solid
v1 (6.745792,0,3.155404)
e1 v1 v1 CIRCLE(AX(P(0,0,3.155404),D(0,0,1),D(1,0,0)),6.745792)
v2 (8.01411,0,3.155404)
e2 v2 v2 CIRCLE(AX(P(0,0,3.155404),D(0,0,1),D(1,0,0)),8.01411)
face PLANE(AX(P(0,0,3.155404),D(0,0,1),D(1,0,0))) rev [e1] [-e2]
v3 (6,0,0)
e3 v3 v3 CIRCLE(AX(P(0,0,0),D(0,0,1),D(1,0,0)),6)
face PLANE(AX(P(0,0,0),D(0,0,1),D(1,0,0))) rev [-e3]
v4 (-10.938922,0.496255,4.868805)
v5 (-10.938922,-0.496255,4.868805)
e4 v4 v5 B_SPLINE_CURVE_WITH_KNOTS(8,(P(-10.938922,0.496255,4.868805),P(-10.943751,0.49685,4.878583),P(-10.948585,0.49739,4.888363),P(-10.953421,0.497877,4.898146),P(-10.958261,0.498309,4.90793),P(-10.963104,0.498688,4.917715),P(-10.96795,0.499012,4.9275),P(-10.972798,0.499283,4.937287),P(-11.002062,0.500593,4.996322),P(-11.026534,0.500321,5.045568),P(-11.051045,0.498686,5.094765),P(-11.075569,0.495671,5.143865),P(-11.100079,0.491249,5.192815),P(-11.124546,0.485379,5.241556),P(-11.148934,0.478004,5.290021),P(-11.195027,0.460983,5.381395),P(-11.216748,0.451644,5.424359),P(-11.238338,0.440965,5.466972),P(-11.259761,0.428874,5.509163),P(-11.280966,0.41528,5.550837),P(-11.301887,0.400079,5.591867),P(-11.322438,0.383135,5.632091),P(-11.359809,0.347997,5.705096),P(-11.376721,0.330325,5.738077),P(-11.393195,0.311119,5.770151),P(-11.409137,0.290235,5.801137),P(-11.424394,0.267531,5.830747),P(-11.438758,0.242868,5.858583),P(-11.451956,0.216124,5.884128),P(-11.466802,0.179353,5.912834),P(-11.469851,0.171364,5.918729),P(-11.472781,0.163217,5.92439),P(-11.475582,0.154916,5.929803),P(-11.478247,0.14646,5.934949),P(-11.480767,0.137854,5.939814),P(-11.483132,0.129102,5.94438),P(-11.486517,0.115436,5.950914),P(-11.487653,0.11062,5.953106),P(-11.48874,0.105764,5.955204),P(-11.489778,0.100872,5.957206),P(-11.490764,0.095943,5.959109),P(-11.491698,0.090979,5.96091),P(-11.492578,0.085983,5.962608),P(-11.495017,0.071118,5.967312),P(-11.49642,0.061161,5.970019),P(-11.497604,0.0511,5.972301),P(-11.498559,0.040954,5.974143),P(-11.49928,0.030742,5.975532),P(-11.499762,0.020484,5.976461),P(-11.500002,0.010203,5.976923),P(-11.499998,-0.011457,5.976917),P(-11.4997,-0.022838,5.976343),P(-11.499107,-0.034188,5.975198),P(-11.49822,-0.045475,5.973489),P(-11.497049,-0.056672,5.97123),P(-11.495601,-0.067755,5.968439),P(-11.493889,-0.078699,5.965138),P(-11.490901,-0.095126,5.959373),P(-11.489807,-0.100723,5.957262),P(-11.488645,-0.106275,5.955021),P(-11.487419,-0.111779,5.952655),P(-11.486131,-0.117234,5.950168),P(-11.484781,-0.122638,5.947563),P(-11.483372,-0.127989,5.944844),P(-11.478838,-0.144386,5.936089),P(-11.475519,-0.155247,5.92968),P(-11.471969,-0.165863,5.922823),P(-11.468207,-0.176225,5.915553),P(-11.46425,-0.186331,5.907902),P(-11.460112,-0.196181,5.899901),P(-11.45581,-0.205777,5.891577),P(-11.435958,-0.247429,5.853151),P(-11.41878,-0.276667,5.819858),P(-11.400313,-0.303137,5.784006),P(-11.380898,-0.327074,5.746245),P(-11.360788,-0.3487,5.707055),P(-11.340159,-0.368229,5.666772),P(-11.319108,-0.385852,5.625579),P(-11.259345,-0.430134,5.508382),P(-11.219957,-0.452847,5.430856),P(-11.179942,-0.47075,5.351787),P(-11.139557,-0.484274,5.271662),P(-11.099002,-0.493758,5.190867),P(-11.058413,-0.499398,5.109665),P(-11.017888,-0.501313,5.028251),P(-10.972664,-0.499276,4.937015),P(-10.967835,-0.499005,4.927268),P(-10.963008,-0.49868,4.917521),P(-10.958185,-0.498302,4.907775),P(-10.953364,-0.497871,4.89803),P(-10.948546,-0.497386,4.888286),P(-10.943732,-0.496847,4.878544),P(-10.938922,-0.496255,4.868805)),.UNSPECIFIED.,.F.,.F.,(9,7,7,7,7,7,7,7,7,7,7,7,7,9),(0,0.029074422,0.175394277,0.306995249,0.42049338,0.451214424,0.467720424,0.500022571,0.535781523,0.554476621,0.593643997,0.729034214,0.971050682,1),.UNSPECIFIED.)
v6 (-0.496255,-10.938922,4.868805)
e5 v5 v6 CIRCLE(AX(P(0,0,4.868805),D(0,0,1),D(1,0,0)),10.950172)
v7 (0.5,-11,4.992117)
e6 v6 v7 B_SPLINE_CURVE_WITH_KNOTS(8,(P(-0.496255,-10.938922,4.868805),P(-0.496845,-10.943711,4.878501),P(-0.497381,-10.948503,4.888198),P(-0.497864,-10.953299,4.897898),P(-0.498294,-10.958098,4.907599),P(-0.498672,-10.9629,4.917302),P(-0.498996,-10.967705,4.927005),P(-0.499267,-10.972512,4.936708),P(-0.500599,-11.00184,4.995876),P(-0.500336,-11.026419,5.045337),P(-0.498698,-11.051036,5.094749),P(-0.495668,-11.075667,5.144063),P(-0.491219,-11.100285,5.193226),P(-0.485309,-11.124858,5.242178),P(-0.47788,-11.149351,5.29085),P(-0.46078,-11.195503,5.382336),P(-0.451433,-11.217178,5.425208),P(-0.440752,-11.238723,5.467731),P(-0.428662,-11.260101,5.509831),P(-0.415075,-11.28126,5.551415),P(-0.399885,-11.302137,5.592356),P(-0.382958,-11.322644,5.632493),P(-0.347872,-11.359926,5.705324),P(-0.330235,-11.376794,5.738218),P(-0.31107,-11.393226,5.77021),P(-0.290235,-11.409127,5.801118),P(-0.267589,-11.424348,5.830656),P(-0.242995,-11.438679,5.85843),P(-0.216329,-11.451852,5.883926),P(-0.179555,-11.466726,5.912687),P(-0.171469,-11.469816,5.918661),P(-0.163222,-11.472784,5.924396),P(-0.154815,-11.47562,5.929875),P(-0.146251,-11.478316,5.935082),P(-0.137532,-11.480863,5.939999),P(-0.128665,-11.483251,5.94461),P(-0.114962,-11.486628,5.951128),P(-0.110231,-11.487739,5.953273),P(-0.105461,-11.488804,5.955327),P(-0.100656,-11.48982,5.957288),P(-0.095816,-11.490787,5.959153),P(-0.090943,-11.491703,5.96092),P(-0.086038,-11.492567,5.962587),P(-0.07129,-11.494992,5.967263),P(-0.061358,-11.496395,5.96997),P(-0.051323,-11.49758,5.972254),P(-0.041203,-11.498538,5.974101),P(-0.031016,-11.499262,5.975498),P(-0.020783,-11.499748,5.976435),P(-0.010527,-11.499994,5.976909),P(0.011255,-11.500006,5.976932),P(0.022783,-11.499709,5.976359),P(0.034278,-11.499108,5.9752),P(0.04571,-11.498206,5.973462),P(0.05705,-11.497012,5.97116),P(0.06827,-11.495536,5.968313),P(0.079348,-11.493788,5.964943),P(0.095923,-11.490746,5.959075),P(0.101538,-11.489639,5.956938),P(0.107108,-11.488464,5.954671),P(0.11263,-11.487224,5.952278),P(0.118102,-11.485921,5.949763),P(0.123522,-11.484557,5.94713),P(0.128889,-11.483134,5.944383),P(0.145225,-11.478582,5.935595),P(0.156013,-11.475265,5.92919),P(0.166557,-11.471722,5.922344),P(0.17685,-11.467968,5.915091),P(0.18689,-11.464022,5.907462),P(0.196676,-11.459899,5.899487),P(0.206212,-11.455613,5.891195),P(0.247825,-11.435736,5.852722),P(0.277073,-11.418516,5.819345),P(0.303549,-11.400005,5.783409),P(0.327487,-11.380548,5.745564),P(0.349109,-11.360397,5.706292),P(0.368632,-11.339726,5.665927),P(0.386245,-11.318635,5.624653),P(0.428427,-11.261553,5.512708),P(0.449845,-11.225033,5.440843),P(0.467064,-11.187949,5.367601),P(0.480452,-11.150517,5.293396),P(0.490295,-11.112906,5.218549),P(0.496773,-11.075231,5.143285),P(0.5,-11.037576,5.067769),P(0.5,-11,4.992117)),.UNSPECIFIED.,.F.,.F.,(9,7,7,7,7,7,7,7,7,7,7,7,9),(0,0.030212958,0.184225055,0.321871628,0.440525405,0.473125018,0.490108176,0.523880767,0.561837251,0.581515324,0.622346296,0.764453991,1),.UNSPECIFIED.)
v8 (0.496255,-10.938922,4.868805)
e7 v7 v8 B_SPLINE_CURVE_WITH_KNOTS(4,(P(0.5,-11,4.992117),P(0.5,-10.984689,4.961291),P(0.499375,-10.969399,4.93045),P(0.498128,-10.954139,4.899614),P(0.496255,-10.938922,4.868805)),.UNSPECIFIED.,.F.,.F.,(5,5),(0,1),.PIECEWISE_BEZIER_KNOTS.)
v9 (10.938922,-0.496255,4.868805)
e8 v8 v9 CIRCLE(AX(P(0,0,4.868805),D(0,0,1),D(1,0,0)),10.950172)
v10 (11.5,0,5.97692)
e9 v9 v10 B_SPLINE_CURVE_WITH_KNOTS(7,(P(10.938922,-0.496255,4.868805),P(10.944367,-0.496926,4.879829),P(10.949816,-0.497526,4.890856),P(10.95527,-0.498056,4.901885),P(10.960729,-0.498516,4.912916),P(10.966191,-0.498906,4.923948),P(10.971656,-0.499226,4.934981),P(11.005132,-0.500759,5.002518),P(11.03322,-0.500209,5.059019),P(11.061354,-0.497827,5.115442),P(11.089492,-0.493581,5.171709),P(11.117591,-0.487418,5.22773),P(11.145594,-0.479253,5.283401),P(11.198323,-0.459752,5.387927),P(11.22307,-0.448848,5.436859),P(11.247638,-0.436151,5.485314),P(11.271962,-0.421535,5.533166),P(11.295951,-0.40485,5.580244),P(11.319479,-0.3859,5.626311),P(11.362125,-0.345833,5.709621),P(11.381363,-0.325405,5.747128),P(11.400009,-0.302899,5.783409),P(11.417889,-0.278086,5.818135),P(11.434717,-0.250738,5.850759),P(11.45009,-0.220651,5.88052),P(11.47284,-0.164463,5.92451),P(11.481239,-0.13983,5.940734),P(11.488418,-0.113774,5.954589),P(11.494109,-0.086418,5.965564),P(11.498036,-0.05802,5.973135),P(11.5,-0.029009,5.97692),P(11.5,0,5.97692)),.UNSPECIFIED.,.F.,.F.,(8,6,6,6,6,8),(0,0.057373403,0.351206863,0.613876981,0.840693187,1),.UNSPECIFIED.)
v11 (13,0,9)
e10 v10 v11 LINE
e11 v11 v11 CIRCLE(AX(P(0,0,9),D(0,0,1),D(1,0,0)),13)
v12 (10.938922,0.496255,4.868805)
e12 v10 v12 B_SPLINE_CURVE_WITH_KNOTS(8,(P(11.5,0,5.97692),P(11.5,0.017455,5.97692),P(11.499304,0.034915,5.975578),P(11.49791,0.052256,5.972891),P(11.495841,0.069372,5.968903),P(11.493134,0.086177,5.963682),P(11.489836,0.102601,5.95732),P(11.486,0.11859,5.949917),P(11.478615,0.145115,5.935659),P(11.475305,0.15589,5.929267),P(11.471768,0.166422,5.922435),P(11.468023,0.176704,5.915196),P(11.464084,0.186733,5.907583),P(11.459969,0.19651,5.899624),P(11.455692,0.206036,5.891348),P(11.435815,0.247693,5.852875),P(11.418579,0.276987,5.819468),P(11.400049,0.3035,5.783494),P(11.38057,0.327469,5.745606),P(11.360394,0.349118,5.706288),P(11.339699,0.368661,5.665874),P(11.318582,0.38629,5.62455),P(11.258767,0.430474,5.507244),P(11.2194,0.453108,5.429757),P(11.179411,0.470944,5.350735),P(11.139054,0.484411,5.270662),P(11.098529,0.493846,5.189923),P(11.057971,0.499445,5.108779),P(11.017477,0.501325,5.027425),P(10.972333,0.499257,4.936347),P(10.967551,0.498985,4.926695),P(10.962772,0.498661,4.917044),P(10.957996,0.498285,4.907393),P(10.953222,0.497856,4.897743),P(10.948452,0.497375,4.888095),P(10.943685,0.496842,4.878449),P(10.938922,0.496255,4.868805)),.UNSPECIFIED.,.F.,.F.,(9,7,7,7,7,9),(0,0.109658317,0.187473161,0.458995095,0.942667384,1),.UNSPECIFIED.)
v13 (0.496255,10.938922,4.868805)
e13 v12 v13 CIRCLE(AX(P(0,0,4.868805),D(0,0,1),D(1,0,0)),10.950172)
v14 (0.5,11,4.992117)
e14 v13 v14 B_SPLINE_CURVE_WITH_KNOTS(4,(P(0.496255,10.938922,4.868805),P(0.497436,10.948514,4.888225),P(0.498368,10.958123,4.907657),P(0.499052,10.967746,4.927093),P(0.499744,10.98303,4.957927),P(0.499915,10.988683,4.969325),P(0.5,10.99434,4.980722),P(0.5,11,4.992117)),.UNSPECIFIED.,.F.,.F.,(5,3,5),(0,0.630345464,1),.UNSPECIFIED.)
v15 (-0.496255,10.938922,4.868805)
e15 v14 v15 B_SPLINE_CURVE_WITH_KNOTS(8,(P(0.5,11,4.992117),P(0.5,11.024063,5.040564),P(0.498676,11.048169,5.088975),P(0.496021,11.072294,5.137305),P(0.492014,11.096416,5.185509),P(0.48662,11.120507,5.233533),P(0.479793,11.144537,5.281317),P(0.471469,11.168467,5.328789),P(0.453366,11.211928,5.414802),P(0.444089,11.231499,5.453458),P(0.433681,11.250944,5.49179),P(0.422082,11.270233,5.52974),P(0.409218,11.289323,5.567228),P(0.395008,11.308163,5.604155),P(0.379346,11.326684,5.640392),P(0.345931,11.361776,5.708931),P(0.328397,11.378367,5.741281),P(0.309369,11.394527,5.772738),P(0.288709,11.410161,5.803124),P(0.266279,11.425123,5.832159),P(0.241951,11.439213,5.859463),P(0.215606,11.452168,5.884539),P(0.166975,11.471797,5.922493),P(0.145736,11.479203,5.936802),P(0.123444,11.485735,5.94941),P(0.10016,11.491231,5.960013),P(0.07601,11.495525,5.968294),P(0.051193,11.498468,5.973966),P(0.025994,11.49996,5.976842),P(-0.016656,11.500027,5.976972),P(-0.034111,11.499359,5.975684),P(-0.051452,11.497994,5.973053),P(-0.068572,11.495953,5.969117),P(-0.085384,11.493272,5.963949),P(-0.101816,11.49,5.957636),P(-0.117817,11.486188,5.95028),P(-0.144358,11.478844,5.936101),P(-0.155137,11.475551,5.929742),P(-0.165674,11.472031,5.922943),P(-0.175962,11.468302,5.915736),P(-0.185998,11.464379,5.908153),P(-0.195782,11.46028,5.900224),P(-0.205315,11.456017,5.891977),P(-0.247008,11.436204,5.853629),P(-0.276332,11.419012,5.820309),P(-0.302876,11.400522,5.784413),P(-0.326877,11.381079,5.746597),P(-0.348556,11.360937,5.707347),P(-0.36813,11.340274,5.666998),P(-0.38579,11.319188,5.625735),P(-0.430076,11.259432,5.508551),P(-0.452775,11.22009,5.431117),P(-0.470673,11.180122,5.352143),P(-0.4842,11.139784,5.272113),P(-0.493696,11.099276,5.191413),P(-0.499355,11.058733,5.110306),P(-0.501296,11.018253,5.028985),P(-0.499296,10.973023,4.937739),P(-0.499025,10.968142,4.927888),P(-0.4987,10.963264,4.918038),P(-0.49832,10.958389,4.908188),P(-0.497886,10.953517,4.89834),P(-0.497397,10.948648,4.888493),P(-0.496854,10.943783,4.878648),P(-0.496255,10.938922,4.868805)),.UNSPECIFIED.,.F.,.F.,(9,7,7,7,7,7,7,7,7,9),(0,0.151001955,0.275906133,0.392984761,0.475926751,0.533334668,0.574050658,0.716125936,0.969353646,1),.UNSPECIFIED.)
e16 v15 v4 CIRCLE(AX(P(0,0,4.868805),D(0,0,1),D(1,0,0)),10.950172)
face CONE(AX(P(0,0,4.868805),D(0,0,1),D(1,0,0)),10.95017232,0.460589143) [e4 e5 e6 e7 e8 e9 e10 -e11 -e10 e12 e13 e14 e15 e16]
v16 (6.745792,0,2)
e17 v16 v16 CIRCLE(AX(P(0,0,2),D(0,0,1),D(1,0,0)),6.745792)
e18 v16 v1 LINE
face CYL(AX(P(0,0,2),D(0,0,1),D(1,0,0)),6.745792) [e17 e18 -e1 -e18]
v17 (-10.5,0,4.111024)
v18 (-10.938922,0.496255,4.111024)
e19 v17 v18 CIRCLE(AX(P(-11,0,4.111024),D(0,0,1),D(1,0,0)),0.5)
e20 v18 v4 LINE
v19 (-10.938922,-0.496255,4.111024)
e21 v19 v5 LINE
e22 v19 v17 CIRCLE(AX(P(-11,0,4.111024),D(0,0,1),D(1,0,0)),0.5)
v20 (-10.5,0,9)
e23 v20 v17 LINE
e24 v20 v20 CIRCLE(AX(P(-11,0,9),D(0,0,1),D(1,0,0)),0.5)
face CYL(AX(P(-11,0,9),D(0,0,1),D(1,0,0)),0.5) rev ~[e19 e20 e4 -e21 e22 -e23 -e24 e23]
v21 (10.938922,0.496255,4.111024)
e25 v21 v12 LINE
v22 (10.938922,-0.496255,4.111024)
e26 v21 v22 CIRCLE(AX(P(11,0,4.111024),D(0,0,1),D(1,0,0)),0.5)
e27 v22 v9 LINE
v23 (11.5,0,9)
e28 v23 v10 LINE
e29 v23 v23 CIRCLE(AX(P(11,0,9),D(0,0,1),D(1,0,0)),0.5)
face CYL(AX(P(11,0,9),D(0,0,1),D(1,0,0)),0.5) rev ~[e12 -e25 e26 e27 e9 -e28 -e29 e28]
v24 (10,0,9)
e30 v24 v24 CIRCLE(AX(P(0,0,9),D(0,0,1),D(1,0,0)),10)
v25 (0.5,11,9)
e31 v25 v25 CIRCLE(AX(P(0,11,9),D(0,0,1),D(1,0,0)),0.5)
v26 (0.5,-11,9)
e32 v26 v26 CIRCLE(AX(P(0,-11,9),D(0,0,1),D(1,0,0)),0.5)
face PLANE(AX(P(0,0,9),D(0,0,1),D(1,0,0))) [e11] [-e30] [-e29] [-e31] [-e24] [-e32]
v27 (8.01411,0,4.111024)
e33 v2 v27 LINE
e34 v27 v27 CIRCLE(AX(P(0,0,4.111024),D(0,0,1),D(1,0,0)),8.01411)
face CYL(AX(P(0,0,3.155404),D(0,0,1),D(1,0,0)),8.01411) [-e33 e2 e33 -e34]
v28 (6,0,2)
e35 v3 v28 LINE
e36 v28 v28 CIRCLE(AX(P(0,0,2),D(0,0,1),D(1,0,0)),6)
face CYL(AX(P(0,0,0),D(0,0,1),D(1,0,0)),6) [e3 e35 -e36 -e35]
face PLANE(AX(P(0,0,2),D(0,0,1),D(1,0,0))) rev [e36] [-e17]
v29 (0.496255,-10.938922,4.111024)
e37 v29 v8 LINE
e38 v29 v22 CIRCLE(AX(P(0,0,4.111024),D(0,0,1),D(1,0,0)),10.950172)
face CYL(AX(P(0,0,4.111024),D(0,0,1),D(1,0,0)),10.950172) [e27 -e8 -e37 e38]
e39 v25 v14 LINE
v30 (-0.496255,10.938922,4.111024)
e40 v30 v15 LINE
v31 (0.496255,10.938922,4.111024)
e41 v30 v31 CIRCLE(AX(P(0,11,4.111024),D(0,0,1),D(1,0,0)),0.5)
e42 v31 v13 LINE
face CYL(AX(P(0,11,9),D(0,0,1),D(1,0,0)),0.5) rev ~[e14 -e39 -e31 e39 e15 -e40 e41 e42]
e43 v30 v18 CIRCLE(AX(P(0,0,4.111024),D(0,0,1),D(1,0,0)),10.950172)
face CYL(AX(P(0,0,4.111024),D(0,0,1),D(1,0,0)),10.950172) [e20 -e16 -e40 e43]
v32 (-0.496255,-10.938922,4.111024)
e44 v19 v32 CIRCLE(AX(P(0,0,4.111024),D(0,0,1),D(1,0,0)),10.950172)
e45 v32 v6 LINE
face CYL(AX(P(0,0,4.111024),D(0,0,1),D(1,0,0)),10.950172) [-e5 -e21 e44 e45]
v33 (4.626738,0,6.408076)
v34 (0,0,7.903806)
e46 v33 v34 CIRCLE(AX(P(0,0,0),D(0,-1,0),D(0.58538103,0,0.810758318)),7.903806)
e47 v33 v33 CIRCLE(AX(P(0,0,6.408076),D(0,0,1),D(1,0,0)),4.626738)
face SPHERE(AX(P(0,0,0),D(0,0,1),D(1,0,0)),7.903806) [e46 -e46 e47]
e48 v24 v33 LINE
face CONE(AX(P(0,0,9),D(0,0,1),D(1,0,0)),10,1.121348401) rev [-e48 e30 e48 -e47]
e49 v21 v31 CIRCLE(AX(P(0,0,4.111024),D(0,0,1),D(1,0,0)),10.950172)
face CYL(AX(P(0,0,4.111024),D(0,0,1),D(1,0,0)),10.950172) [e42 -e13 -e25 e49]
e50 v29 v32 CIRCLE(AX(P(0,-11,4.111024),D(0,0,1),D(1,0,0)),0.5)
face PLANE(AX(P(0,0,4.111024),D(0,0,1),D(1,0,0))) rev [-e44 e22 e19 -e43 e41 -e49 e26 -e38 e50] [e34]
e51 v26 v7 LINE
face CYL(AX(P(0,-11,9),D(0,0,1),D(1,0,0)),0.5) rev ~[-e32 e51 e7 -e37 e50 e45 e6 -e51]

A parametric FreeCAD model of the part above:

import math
import FreeCAD as App
import Part
import Sketcher
from FreeCAD import Vector
Q = App.Units.Quantity

doc = App.newDocument("Part")
body = doc.addObject("PartDesign::Body", "Body")

sketch1 = body.newObject("Sketcher::SketchObject", "Sketch")
sketch1.AttachmentSupport = (doc.getObject("XZ_Plane"), [""])
sketch1.MapMode = "FlatFace"
sketch1.addGeometry([
    Part.LineSegment(Vector(0, 7.9, 0), Vector(0, 0, 0)),
    Part.LineSegment(Vector(0, 0, 0), Vector(6, 0, 0)),
    Part.LineSegment(Vector(6, 0, 0), Vector(6, 2, 0)),
    Part.LineSegment(Vector(6, 2, 0), Vector(6.7, 2, 0)),
    Part.LineSegment(Vector(6.7, 2, 0), Vector(6.7, 3.2, 0)),
    Part.LineSegment(Vector(6.7, 3.2, 0), Vector(8, 3.2, 0)),
    Part.LineSegment(Vector(8, 3.2, 0), Vector(8, 4.1, 0)),
    Part.LineSegment(Vector(8, 4.1, 0), Vector(11, 4.1, 0)),
    Part.LineSegment(Vector(11, 4.1, 0), Vector(11, 4.9, 0)),
    Part.LineSegment(Vector(11, 4.9, 0), Vector(13, 9, 0)),
    Part.LineSegment(Vector(13, 9, 0), Vector(10, 9, 0)),
    Part.LineSegment(Vector(10, 9, 0), Vector(4.6, 6.4, 0)),
    Part.ArcOfCircle(Part.Circle(Vector(0, 0, 0), Vector(0, 0, 1), 7.9), math.radians(54), math.radians(90)),
], False)
sketch1.addConstraint([
    Sketcher.Constraint("Coincident", 0, 2, 1, 1),
    Sketcher.Constraint("Coincident", 1, 2, 2, 1),
    Sketcher.Constraint("Coincident", 2, 2, 3, 1),
    Sketcher.Constraint("Coincident", 3, 2, 4, 1),
    Sketcher.Constraint("Coincident", 4, 2, 5, 1),
    Sketcher.Constraint("Coincident", 5, 2, 6, 1),
    Sketcher.Constraint("Coincident", 6, 2, 7, 1),
    Sketcher.Constraint("Coincident", 7, 2, 8, 1),
    Sketcher.Constraint("Coincident", 8, 2, 9, 1),
    Sketcher.Constraint("Coincident", 9, 2, 10, 1),
    Sketcher.Constraint("Coincident", 10, 2, 11, 1),
    Sketcher.Constraint("Coincident", 11, 2, 12, 1),
    Sketcher.Constraint("Coincident", 12, 2, 0, 1),
    Sketcher.Constraint("Vertical", 0),
    Sketcher.Constraint("Horizontal", 1),
    Sketcher.Constraint("Vertical", 2),
    Sketcher.Constraint("Horizontal", 3),
    Sketcher.Constraint("Vertical", 4),
    Sketcher.Constraint("Horizontal", 5),
    Sketcher.Constraint("Vertical", 6),
    Sketcher.Constraint("Horizontal", 7),
    Sketcher.Constraint("Vertical", 8),
    Sketcher.Constraint("Horizontal", 10),
    Sketcher.Constraint("Coincident", 12, 3, -1, 1),
    Sketcher.Constraint("Coincident", 0, 2, -1, 1),
    Sketcher.Constraint("DistanceX", 1, 1, 1, 2, Q("6 mm")),
    Sketcher.Constraint("DistanceX", 10, 2, 10, 1, Q("3 mm")),
    Sketcher.Constraint("DistanceY", 2, 1, 2, 2, Q("2 mm")),
    Sketcher.Constraint("DistanceX", -1, 1, 9, 2, Q("13 mm")),
    Sketcher.Constraint("DistanceY", -1, 1, 9, 2, Q("9 mm")),
    Sketcher.Constraint("Radius", 12, Q("7.903806 mm")),
    Sketcher.Constraint("DistanceX", 3, 1, 3, 2, Q("0.745792 mm")),
    Sketcher.Constraint("DistanceY", 6, 1, 6, 2, Q("0.95562 mm")),
    Sketcher.Constraint("DistanceY", 8, 1, 8, 2, Q("0.757781 mm")),
    Sketcher.Constraint("DistanceY", 4, 2, 12, 2, Q("4.748402 mm")),
    Sketcher.Constraint("DistanceX", 5, 1, 5, 2, Q("1.268318 mm")),
    Sketcher.Constraint("DistanceX", 7, 1, 7, 2, Q("2.936062 mm")),
    Sketcher.Constraint("DistanceY", 11, 2, 12, 2, Q("1.495729 mm")),
])
revolution = body.newObject("PartDesign::Revolution", "Revolution")
revolution.Profile = sketch1
revolution.ReferenceAxis = (sketch1, ["V_Axis"])
revolution.Angle = 360

sketch2 = body.newObject("Sketcher::SketchObject", "Sketch001")
sketch2.AttachmentSupport = (doc.getObject("XY_Plane"), [""])
sketch2.MapMode = "FlatFace"
sketch2.AttachmentOffset = App.Placement(Vector(0, 0, 9), App.Rotation())
sketch2.addGeometry([
    Part.Circle(Vector(0, 11, 0), Vector(0, 0, 1), 0.5),
    Part.Circle(Vector(-11, 0, 0), Vector(0, 0, 1), 0.5),
    Part.Circle(Vector(0, -11, 0), Vector(0, 0, 1), 0.5),
    Part.Circle(Vector(11, 0, 0), Vector(0, 0, 1), 0.5),
], False)
sketch2.addConstraint([
    Sketcher.Constraint("Equal", 0, 1),
    Sketcher.Constraint("Equal", 1, 2),
    Sketcher.Constraint("Equal", 2, 3),
    Sketcher.Constraint("Symmetric", 0, 3, 2, 3, -1, 1),
    Sketcher.Constraint("Symmetric", 1, 3, 3, 3, -1, 1),
    Sketcher.Constraint("PointOnObject", 0, 3, -2),
    Sketcher.Constraint("PointOnObject", 1, 3, -1),
    Sketcher.Constraint("Diameter", 0, Q("1 mm")),
    Sketcher.Constraint("DistanceY", -1, 1, 0, 3, Q("11 mm")),
    Sketcher.Constraint("DistanceX", 1, 3, -1, 1, Q("11 mm")),
])
pocket1 = body.newObject("PartDesign::Pocket", "Pocket")
pocket1.Profile = sketch2
pocket1.Type = "ThroughAll"

doc.recompute()
